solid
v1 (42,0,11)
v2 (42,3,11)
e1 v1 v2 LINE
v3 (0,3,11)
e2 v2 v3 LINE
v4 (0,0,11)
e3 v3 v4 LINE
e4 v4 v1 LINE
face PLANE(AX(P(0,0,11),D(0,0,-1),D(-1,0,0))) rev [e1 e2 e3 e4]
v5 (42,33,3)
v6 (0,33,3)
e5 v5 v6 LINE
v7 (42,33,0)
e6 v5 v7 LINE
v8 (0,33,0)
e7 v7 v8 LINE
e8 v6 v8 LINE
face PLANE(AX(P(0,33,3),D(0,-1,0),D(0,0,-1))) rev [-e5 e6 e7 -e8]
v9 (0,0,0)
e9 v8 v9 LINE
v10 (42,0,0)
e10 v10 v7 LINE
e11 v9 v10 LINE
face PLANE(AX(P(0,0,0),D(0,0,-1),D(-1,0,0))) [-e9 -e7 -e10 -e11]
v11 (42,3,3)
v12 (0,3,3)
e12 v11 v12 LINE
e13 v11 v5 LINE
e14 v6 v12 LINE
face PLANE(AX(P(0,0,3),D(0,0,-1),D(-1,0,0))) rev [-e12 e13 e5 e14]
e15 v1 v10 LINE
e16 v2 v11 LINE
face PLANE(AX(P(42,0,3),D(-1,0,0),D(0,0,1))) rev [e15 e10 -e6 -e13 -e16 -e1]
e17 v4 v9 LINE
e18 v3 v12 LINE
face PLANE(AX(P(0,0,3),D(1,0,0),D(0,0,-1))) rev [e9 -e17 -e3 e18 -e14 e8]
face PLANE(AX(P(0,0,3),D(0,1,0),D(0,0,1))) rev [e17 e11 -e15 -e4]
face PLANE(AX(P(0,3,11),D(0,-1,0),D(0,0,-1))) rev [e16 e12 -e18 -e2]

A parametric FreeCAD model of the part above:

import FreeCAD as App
import Part
import Sketcher

doc = App.newDocument("Part")
body = doc.addObject("PartDesign::Body", "Body")

# Sketch on XY plane
sketch1 = body.newObject("Sketcher::SketchObject", "Sketch")
sketch1.AttachmentSupport = (doc.getObject("XY_Plane"), [""])
sketch1.MapMode = "FlatFace"
sketch1.addGeometry([
    Part.LineSegment(App.Vector(0, 33, 0), App.Vector(0, 0, 0)),
    Part.LineSegment(App.Vector(0, 0, 0), App.Vector(42, 0, 0)),
    Part.LineSegment(App.Vector(42, 0, 0), App.Vector(42, 33, 0)),
    Part.LineSegment(App.Vector(42, 33, 0), App.Vector(0, 33, 0)),
], False)
sketch1.addConstraint([
    Sketcher.Constraint("Coincident", 0, 2, 1, 1),
    Sketcher.Constraint("Coincident", 1, 2, 2, 1),
    Sketcher.Constraint("Coincident", 2, 2, 3, 1),
    Sketcher.Constraint("Coincident", 3, 2, 0, 1),
    Sketcher.Constraint("Vertical", 0),
    Sketcher.Constraint("Horizontal", 1),
    Sketcher.Constraint("Vertical", 2),
    Sketcher.Constraint("Horizontal", 3),
    Sketcher.Constraint("Coincident", 0, 2, -1, 1),
    Sketcher.Constraint("DistanceX", 1, 1, 1, 2, 42.0),
    Sketcher.Constraint("DistanceY", 0, 2, 0, 1, 33.0),
])
pad1 = body.newObject("PartDesign::Pad", "Pad")
pad1.Profile = sketch1
pad1.Length = 3

# Sketch on XY plane
sketch2 = body.newObject("Sketcher::SketchObject", "Sketch001")
sketch2.AttachmentSupport = (doc.getObject("XY_Plane"), [""])
sketch2.MapMode = "FlatFace"
sketch2.AttachmentOffset = App.Placement(App.Vector(0, 0, 3), App.Rotation())
sketch2.addGeometry([
    Part.LineSegment(App.Vector(0, 3, 0), App.Vector(0, 0, 0)),
    Part.LineSegment(App.Vector(0, 0, 0), App.Vector(42, 0, 0)),
    Part.LineSegment(App.Vector(42, 0, 0), App.Vector(42, 3, 0)),
    Part.LineSegment(App.Vector(42, 3, 0), App.Vector(0, 3, 0)),
], False)
sketch2.addConstraint([
    Sketcher.Constraint("Coincident", 0, 2, 1, 1),
    Sketcher.Constraint("Coincident", 1, 2, 2, 1),
    Sketcher.Constraint("Coincident", 2, 2, 3, 1),
    Sketcher.Constraint("Coincident", 3, 2, 0, 1),
    Sketcher.Constraint("Vertical", 0),
    Sketcher.Constraint("Horizontal", 1),
    Sketcher.Constraint("Vertical", 2),
    Sketcher.Constraint("Horizontal", 3),
    Sketcher.Constraint("Coincident", 0, 2, -1, 1),
    Sketcher.Constraint("DistanceX", 1, 1, 1, 2, 42.0),
    Sketcher.Constraint("DistanceY", 0, 2, 0, 1, 3.0),
])
pad2 = body.newObject("PartDesign::Pad", "Pad001")
pad2.Profile = sketch2
pad2.Length = 8

doc.recompute()
